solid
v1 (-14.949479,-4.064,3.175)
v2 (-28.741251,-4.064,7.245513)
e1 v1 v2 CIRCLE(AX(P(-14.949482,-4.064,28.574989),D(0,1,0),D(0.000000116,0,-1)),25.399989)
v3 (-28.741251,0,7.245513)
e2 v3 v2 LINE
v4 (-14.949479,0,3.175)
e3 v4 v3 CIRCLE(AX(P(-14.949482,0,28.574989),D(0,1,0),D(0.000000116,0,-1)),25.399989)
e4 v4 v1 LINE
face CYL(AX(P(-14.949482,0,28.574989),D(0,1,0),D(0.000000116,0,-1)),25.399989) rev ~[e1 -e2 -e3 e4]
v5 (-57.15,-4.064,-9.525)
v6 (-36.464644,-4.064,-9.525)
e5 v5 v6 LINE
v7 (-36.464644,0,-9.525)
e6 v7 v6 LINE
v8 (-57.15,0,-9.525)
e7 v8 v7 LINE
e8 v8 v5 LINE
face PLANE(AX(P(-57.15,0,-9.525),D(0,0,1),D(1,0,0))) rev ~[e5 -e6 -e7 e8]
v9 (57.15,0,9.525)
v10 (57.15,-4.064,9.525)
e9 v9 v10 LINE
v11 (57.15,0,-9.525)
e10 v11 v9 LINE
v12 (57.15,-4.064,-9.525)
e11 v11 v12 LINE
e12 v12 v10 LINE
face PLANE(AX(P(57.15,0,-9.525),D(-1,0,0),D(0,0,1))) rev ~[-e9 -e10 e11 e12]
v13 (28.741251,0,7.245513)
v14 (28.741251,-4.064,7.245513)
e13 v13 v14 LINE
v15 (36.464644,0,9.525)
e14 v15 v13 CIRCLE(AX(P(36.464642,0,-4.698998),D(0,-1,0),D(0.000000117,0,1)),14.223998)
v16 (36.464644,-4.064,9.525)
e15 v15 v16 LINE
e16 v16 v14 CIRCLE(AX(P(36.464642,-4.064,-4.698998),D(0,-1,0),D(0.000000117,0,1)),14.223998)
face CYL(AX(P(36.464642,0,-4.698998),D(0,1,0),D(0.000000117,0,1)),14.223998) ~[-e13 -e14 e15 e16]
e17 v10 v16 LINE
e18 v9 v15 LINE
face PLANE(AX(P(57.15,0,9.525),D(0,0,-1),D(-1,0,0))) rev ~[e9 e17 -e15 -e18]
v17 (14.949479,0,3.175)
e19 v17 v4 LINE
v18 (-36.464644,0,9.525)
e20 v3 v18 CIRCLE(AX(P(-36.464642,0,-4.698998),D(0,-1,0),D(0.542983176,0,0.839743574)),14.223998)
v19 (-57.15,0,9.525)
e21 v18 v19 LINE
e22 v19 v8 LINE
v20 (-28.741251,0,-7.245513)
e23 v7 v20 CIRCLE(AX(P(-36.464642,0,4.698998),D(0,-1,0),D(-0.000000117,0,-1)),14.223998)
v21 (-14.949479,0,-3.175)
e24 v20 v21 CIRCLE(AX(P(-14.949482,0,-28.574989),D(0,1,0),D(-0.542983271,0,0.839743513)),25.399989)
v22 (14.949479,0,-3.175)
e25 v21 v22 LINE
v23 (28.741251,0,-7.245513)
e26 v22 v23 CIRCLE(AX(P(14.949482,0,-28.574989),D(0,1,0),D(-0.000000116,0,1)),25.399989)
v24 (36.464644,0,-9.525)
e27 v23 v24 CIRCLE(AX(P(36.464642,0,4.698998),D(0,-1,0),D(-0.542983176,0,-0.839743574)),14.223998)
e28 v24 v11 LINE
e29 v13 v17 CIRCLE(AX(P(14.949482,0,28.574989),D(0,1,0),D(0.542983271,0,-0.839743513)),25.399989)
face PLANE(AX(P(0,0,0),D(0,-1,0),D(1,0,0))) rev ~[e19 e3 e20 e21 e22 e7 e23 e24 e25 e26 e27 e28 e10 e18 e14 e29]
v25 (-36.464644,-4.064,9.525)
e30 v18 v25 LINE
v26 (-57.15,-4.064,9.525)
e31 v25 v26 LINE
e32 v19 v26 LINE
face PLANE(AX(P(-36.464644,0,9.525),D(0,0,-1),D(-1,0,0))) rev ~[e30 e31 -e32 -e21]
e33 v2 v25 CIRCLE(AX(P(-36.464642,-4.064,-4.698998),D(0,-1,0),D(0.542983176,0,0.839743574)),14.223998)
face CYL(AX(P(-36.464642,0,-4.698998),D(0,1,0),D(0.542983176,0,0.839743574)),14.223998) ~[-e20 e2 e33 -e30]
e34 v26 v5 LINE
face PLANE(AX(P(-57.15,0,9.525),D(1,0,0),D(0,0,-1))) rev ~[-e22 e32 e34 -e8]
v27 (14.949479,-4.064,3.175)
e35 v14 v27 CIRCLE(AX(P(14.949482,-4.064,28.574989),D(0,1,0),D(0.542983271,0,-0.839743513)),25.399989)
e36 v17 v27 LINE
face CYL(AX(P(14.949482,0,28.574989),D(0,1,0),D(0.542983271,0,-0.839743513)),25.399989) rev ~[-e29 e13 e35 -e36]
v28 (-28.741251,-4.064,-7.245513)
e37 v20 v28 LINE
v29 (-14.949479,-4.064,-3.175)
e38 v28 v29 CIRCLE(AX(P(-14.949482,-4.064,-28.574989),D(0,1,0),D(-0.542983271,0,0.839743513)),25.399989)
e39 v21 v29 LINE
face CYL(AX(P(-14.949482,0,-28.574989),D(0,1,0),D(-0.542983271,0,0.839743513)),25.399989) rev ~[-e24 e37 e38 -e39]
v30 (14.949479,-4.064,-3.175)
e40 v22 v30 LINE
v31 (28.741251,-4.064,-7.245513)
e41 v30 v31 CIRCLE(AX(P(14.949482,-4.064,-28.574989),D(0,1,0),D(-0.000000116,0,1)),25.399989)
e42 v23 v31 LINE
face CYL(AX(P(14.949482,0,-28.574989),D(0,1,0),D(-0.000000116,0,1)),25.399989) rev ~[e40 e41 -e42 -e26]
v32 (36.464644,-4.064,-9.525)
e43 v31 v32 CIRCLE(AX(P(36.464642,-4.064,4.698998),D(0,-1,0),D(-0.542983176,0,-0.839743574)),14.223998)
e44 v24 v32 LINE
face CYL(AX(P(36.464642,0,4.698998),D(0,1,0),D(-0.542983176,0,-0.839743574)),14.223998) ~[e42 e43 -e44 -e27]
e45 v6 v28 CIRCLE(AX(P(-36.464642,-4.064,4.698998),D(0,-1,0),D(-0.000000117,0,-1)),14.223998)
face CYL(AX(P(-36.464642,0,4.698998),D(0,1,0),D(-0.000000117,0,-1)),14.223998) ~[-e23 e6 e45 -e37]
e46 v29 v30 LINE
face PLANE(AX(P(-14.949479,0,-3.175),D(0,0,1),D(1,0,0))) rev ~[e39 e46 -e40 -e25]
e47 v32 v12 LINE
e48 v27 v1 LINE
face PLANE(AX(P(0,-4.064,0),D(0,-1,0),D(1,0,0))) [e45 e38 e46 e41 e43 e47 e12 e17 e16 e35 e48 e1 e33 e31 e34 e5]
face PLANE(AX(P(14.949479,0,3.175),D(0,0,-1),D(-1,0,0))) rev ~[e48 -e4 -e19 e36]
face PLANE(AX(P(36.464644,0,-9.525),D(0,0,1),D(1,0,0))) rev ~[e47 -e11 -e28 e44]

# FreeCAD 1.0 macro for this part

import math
import FreeCAD as App
import Part
import Sketcher
Q = App.Units.Quantity

doc = App.newDocument("Part")
params = doc.addObject("Spreadsheet::Sheet", "Params")
for row, (alias, value) in enumerate([
    ("sketch1_radius", "0.5599999 in"),
    ("sketch1_height", "0.75 in"),
    ("pad1_length", "0.16 in"),
], start=1):
    params.set(f"A{row}", alias)
    params.set(f"B{row}", "=" + value)
    params.setAlias(f"B{row}", alias)

body = doc.addObject("PartDesign::Body", "Body")

sketch1 = body.newObject("Sketcher::SketchObject", "Sketch")
sketch1.AttachmentSupport = (doc.getObject("XZ_Plane"), [""])
sketch1.MapMode = "FlatFace"
sketch1.addGeometry(Part.LineSegment(App.Vector(15, 3, 0), App.Vector(-15, 3, 0)), False)
sketch1.addGeometry(Part.ArcOfCircle(Part.Circle(App.Vector(-15, 29, 0), App.Vector(0, 0, 1), 25), math.radians(-123), math.radians(-90)), False)
sketch1.addGeometry(Part.ArcOfCircle(Part.Circle(App.Vector(-36, -5, 0), App.Vector(0, 0, 1), 14), math.radians(57), math.radians(90)), False)
sketch1.addGeometry(Part.LineSegment(App.Vector(-36, 10, 0), App.Vector(-57, 10, 0)), False)
sketch1.addGeometry(Part.LineSegment(App.Vector(-57, 10, 0), App.Vector(-57, -10, 0)), False)
sketch1.addGeometry(Part.LineSegment(App.Vector(-57, -10, 0), App.Vector(-36, -10, 0)), False)
sketch1.addGeometry(Part.ArcOfCircle(Part.Circle(App.Vector(-36, 5, 0), App.Vector(0, 0, 1), 14), math.radians(-90), math.radians(-57)), False)
sketch1.addGeometry(Part.ArcOfCircle(Part.Circle(App.Vector(-15, -29, 0), App.Vector(0, 0, 1), 25), math.radians(90), math.radians(123)), False)
sketch1.addGeometry(Part.LineSegment(App.Vector(-15, -3, 0), App.Vector(15, -3, 0)), False)
sketch1.addGeometry(Part.ArcOfCircle(Part.Circle(App.Vector(15, -29, 0), App.Vector(0, 0, 1), 25), math.radians(57), math.radians(90)), False)
sketch1.addGeometry(Part.ArcOfCircle(Part.Circle(App.Vector(36, 5, 0), App.Vector(0, 0, 1), 14), math.radians(-123), math.radians(-90)), False)
sketch1.addGeometry(Part.LineSegment(App.Vector(36, -10, 0), App.Vector(57, -10, 0)), False)
sketch1.addGeometry(Part.LineSegment(App.Vector(57, -10, 0), App.Vector(57, 10, 0)), False)
sketch1.addGeometry(Part.LineSegment(App.Vector(57, 10, 0), App.Vector(36, 10, 0)), False)
sketch1.addGeometry(Part.ArcOfCircle(Part.Circle(App.Vector(36, -5, 0), App.Vector(0, 0, 1), 14), math.radians(90), math.radians(123)), False)
sketch1.addGeometry(Part.ArcOfCircle(Part.Circle(App.Vector(15, 29, 0), App.Vector(0, 0, 1), 25), math.radians(-90), math.radians(-57)), False)
sketch1.addConstraint(Sketcher.Constraint("Tangent", 0, 2, 1, 2))
sketch1.addConstraint(Sketcher.Constraint("Tangent", 1, 1, 2, 1))
sketch1.addConstraint(Sketcher.Constraint("Tangent", 2, 2, 3, 1))
sketch1.addConstraint(Sketcher.Constraint("Coincident", 3, 2, 4, 1))
sketch1.addConstraint(Sketcher.Constraint("Coincident", 4, 2, 5, 1))
sketch1.addConstraint(Sketcher.Constraint("Tangent", 5, 2, 6, 1))
sketch1.addConstraint(Sketcher.Constraint("Tangent", 6, 2, 7, 2))
sketch1.addConstraint(Sketcher.Constraint("Tangent", 7, 1, 8, 1))
sketch1.addConstraint(Sketcher.Constraint("Tangent", 8, 2, 9, 2))
sketch1.addConstraint(Sketcher.Constraint("Tangent", 9, 1, 10, 1))
sketch1.addConstraint(Sketcher.Constraint("Tangent", 10, 2, 11, 1))
sketch1.addConstraint(Sketcher.Constraint("Coincident", 11, 2, 12, 1))
sketch1.addConstraint(Sketcher.Constraint("Coincident", 12, 2, 13, 1))
sketch1.addConstraint(Sketcher.Constraint("Tangent", 13, 2, 14, 1))
sketch1.addConstraint(Sketcher.Constraint("Tangent", 14, 2, 15, 2))
sketch1.addConstraint(Sketcher.Constraint("Tangent", 15, 1, 0, 1))
sketch1.addConstraint(Sketcher.Constraint("Horizontal", 0))
sketch1.addConstraint(Sketcher.Constraint("Horizontal", 3))
sketch1.addConstraint(Sketcher.Constraint("Vertical", 4))
sketch1.addConstraint(Sketcher.Constraint("Horizontal", 5))
sketch1.addConstraint(Sketcher.Constraint("Horizontal", 8))
sketch1.addConstraint(Sketcher.Constraint("Horizontal", 11))
sketch1.addConstraint(Sketcher.Constraint("Vertical", 12))
sketch1.addConstraint(Sketcher.Constraint("Horizontal", 13))
sketch1.addConstraint(Sketcher.Constraint("Equal", 2, 6))
sketch1.addConstraint(Sketcher.Constraint("Equal", 1, 7))
sketch1.addConstraint(Sketcher.Constraint("Equal", 7, 9))
sketch1.addConstraint(Sketcher.Constraint("Equal", 6, 10))
sketch1.addConstraint(Sketcher.Constraint("Equal", 10, 14))
sketch1.addConstraint(Sketcher.Constraint("Equal", 9, 15))
sketch1.addConstraint(Sketcher.Constraint("Symmetric", 1, 3, 9, 3, -1, 1))
sketch1.addConstraint(Sketcher.Constraint("Symmetric", 6, 3, 14, 3, -1, 1))
sketch1.addConstraint(Sketcher.Constraint("Symmetric", 3, 2, 11, 2, -1, 1))
sketch1.addConstraint(Sketcher.Constraint("Symmetric", 6, 3, 10, 3, -2))
sketch1.addConstraint(Sketcher.Constraint("Radius", 2, Q("0.5599999 in")))
sketch1.addConstraint(Sketcher.Constraint("DistanceY", 4, 2, 4, 1, Q("0.75 in")))
sketch1.addConstraint(Sketcher.Constraint("DistanceX", 3, 2, -1, 1, Q("2.25 in")))
sketch1.addConstraint(Sketcher.Constraint("DistanceY", 0, 2, 6, 3, Q("0.0599999 in")))
sketch1.addConstraint(Sketcher.Constraint("Radius", 1, 25.399989))
sketch1.addConstraint(Sketcher.Constraint("DistanceX", 0, 2, 0, 1, 29.898958))
sketch1.setExpression("Constraints[34]", "Params.sketch1_radius")
sketch1.setExpression("Constraints[35]", "Params.sketch1_height")
pad1 = body.newObject("PartDesign::Pad", "Pad")
pad1.Profile = sketch1
pad1.setExpression("Length", "Params.pad1_length")

doc.recompute()
